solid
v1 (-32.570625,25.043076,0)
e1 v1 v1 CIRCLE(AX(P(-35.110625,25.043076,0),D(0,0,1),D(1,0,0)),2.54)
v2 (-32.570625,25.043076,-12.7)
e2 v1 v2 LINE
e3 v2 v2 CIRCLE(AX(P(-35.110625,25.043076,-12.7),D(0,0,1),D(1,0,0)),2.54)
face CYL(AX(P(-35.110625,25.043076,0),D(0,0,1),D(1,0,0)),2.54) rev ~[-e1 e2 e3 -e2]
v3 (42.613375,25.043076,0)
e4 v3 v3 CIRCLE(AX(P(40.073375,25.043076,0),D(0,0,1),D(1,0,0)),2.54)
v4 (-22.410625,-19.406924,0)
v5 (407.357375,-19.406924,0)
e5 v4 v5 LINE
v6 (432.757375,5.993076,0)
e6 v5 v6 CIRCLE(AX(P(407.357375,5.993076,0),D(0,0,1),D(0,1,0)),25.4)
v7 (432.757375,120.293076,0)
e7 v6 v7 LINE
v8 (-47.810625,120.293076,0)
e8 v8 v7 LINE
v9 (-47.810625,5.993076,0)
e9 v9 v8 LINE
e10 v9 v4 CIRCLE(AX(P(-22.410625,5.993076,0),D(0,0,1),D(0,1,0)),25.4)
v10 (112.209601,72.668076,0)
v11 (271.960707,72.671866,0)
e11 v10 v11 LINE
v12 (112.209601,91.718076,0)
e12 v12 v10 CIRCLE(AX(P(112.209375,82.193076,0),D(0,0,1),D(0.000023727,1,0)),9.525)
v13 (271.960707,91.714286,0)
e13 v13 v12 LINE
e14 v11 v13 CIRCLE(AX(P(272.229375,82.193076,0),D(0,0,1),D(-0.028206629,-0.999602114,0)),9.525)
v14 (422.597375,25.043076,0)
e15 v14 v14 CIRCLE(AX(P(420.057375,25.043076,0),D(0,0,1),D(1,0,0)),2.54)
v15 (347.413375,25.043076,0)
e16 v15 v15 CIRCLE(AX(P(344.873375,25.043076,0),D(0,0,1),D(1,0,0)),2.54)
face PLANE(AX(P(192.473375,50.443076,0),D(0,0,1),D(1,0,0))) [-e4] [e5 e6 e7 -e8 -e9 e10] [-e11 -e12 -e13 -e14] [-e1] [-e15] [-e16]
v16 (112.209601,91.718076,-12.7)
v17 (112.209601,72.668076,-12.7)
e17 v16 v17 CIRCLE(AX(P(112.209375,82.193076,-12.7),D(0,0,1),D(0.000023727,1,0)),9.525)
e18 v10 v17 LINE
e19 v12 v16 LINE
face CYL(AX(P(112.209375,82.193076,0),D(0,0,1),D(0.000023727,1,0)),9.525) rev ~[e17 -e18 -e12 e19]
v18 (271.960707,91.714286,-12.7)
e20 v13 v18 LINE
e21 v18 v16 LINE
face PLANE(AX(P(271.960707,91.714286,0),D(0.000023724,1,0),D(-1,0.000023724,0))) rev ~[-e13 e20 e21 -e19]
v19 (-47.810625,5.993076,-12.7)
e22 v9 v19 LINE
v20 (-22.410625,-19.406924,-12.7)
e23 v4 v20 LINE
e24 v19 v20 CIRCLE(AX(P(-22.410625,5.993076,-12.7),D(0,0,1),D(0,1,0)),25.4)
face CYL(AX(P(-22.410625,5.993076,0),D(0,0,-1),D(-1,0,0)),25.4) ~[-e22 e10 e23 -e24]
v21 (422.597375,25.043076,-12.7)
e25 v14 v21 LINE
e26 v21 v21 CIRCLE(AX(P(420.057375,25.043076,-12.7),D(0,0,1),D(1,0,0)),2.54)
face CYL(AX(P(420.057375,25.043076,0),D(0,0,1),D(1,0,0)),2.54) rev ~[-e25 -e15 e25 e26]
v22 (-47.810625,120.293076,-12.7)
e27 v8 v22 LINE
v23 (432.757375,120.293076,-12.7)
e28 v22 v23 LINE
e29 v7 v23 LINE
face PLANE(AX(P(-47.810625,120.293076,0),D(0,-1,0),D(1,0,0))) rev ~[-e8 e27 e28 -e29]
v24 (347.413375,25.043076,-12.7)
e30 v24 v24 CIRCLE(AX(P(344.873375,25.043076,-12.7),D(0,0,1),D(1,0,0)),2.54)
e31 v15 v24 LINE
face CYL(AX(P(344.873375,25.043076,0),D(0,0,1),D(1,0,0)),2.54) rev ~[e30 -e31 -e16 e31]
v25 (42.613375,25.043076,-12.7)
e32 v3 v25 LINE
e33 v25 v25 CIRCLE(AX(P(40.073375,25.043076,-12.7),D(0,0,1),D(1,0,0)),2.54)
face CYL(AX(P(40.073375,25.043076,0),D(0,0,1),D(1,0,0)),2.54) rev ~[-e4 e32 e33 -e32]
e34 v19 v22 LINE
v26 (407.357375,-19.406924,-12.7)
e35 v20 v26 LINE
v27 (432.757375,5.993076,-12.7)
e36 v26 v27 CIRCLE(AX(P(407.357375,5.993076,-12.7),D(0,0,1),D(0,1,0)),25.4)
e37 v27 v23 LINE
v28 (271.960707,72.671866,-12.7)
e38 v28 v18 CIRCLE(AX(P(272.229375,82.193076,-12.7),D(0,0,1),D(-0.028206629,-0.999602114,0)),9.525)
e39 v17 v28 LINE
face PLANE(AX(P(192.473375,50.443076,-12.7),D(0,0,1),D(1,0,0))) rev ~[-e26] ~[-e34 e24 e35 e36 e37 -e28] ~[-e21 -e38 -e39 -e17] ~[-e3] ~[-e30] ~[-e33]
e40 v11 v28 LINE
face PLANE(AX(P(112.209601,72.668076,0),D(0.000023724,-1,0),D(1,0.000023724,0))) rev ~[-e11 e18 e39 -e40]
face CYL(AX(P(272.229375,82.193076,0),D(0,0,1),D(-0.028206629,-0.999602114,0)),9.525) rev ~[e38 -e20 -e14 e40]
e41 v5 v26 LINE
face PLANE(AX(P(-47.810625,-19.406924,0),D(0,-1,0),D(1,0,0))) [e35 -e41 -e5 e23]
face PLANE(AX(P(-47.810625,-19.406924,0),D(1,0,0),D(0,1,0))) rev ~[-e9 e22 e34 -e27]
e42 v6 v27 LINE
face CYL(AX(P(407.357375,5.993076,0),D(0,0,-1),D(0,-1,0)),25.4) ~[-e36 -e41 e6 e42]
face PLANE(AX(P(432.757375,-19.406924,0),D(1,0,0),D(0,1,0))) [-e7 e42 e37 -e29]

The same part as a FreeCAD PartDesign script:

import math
import FreeCAD as App
import Part
import Sketcher
from FreeCAD import Vector
Q = App.Units.Quantity


def edges_at(feature, points):
    """Names of the edges that pass closest to the given points."""
    edges = feature.Shape.Edges
    near = lambda p: min(range(len(edges)), key=lambda i: edges[i].distToShape(Part.Vertex(*p))[0])
    return sorted({f"Edge{near(p) + 1}" for p in points})

doc = App.newDocument("Part")
params = doc.addObject("Spreadsheet::Sheet", "Params")
for row, (alias, value) in enumerate([
    ("sketch1_height", "5.5 in"),
    ("sketch1_width", "18.92 in"),
    ("pad1_length", "0.5 in"),
    ("sketch2_diameter", "0.2 in"),
    ("sketch2_radius", "0.375 in"),
    ("pocket1_length", "1 in"),
    ("fillet_radius", "1 in"),
], start=1):
    params.set(f"A{row}", alias)
    params.set(f"B{row}", "=" + value)
    params.setAlias(f"B{row}", alias)

body = doc.addObject("PartDesign::Body", "Body")

# Sketch on XY plane
sketch1 = body.newObject("Sketcher::SketchObject", "Sketch")
sketch1.AttachmentSupport = (doc.getObject("XY_Plane"), [""])
sketch1.MapMode = "FlatFace"
sketch1.addGeometry([
    Part.LineSegment(Vector(-48, 120, 0), Vector(-48, -19, 0)),
    Part.LineSegment(Vector(-48, -19, 0), Vector(433, -19, 0)),
    Part.LineSegment(Vector(433, -19, 0), Vector(433, 120, 0)),
    Part.LineSegment(Vector(433, 120, 0), Vector(-48, 120, 0)),
], False)
sketch1.addConstraint([
    Sketcher.Constraint("Coincident", 0, 2, 1, 1),
    Sketcher.Constraint("Coincident", 1, 2, 2, 1),
    Sketcher.Constraint("Coincident", 2, 2, 3, 1),
    Sketcher.Constraint("Coincident", 3, 2, 0, 1),
    Sketcher.Constraint("Vertical", 0),
    Sketcher.Constraint("Horizontal", 1),
    Sketcher.Constraint("Vertical", 2),
    Sketcher.Constraint("Horizontal", 3),
    Sketcher.Constraint("DistanceY", 0, 2, 0, 1, Q("5.5 in")),
    Sketcher.Constraint("DistanceX", 1, 1, 1, 2, Q("18.92 in")),
    Sketcher.Constraint("DistanceX", 0, 2, -1, 1, 47.810625),
    Sketcher.Constraint("DistanceY", 0, 2, -1, 1, 19.406924),
])
sketch1.setExpression("Constraints[8]", "Params.sketch1_height")
sketch1.setExpression("Constraints[9]", "Params.sketch1_width")
pad1 = body.newObject("PartDesign::Pad", "Pad")
pad1.Profile = sketch1
pad1.setExpression("Length", "Params.pad1_length")
pad1.Reversed = True

# Sketch on XY plane
sketch2 = body.newObject("Sketcher::SketchObject", "Sketch001")
sketch2.AttachmentSupport = (doc.getObject("XY_Plane"), [""])
sketch2.MapMode = "FlatFace"
sketch2.addGeometry([
    Part.Circle(Vector(-35.1, 25, 0), Vector(0, 0, 1), 2.5),  # 0
    Part.LineSegment(Vector(272, 91.7, 0), Vector(112.2, 91.7, 0)),  # 1
    Part.ArcOfCircle(Part.Circle(Vector(112.2, 82.2, 0), Vector(0, 0, 1), 9.5), math.radians(90), math.radians(270)),  # 2
    Part.LineSegment(Vector(112.2, 72.7, 0), Vector(272, 72.7, 0)),  # 3
    Part.ArcOfCircle(Part.Circle(Vector(272.2, 82.2, 0), Vector(0, 0, 1), 9.5), math.radians(-92), math.radians(92)),  # 4
    Part.Circle(Vector(40.1, 25, 0), Vector(0, 0, 1), 2.5),  # 5
    Part.Circle(Vector(344.9, 25, 0), Vector(0, 0, 1), 2.5),  # 6
    Part.Circle(Vector(420.1, 25, 0), Vector(0, 0, 1), 2.5),  # 7
], False)
sketch2.addConstraint([
    Sketcher.Constraint("Tangent", 1, 2, 2, 1),
    Sketcher.Constraint("Tangent", 2, 2, 3, 1),
    Sketcher.Constraint("Coincident", 3, 2, 4, 1),
    Sketcher.Constraint("Coincident", 4, 2, 1, 1),
    Sketcher.Constraint("Equal", 2, 4),
    Sketcher.Constraint("Equal", 0, 5),
    Sketcher.Constraint("Equal", 5, 6),
    Sketcher.Constraint("Equal", 6, 7),
    Sketcher.Constraint("Horizontal", 2, 3, 4, 3),
    Sketcher.Constraint("Horizontal", 0, 3, 5, 3),
    Sketcher.Constraint("Horizontal", 5, 3, 6, 3),
    Sketcher.Constraint("Horizontal", 6, 3, 7, 3),
    Sketcher.Constraint("Vertical", 3, 2, 4, 2),
    Sketcher.Constraint("Diameter", 0, Q("0.2 in")),
    Sketcher.Constraint("Radius", 2, Q("0.375 in")),
    Sketcher.Constraint("DistanceX", 5, 3, 6, 3, Q("12 in")),
    Sketcher.Constraint("DistanceX", 0, 3, 2, 3, Q("5.8 in")),
    Sketcher.Constraint("DistanceX", 2, 3, 4, 3, Q("6.3 in")),
    Sketcher.Constraint("DistanceY", 0, 3, 2, 3, Q("2.25 in")),
    Sketcher.Constraint("DistanceX", 0, 3, 5, 3, Q("2.96 in")),
    Sketcher.Constraint("DistanceX", 6, 3, 7, 3, Q("2.96 in")),
    Sketcher.Constraint("DistanceX", -1, 1, 1, 2, 112.209601),
    Sketcher.Constraint("DistanceX", 3, 2, 4, 3, 0.268668),
    Sketcher.Constraint("DistanceY", -1, 1, 0, 3, 25.043076),
])
sketch2.setExpression("Constraints[13]", "Params.sketch2_diameter")
sketch2.setExpression("Constraints[14]", "Params.sketch2_radius")
pocket1 = body.newObject("PartDesign::Pocket", "Pocket")
pocket1.Profile = sketch2
pocket1.setExpression("Length", "Params.pocket1_length")
doc.recompute()

fillet = body.newObject("PartDesign::Fillet", "Fillet")
fillet.Base = (pocket1, edges_at(pocket1, [(-47.811, -19.407, -6.35), (432.757, -19.407, -6.35)]))
fillet.setExpression("Radius", "Params.fillet_radius")

doc.recompute()
